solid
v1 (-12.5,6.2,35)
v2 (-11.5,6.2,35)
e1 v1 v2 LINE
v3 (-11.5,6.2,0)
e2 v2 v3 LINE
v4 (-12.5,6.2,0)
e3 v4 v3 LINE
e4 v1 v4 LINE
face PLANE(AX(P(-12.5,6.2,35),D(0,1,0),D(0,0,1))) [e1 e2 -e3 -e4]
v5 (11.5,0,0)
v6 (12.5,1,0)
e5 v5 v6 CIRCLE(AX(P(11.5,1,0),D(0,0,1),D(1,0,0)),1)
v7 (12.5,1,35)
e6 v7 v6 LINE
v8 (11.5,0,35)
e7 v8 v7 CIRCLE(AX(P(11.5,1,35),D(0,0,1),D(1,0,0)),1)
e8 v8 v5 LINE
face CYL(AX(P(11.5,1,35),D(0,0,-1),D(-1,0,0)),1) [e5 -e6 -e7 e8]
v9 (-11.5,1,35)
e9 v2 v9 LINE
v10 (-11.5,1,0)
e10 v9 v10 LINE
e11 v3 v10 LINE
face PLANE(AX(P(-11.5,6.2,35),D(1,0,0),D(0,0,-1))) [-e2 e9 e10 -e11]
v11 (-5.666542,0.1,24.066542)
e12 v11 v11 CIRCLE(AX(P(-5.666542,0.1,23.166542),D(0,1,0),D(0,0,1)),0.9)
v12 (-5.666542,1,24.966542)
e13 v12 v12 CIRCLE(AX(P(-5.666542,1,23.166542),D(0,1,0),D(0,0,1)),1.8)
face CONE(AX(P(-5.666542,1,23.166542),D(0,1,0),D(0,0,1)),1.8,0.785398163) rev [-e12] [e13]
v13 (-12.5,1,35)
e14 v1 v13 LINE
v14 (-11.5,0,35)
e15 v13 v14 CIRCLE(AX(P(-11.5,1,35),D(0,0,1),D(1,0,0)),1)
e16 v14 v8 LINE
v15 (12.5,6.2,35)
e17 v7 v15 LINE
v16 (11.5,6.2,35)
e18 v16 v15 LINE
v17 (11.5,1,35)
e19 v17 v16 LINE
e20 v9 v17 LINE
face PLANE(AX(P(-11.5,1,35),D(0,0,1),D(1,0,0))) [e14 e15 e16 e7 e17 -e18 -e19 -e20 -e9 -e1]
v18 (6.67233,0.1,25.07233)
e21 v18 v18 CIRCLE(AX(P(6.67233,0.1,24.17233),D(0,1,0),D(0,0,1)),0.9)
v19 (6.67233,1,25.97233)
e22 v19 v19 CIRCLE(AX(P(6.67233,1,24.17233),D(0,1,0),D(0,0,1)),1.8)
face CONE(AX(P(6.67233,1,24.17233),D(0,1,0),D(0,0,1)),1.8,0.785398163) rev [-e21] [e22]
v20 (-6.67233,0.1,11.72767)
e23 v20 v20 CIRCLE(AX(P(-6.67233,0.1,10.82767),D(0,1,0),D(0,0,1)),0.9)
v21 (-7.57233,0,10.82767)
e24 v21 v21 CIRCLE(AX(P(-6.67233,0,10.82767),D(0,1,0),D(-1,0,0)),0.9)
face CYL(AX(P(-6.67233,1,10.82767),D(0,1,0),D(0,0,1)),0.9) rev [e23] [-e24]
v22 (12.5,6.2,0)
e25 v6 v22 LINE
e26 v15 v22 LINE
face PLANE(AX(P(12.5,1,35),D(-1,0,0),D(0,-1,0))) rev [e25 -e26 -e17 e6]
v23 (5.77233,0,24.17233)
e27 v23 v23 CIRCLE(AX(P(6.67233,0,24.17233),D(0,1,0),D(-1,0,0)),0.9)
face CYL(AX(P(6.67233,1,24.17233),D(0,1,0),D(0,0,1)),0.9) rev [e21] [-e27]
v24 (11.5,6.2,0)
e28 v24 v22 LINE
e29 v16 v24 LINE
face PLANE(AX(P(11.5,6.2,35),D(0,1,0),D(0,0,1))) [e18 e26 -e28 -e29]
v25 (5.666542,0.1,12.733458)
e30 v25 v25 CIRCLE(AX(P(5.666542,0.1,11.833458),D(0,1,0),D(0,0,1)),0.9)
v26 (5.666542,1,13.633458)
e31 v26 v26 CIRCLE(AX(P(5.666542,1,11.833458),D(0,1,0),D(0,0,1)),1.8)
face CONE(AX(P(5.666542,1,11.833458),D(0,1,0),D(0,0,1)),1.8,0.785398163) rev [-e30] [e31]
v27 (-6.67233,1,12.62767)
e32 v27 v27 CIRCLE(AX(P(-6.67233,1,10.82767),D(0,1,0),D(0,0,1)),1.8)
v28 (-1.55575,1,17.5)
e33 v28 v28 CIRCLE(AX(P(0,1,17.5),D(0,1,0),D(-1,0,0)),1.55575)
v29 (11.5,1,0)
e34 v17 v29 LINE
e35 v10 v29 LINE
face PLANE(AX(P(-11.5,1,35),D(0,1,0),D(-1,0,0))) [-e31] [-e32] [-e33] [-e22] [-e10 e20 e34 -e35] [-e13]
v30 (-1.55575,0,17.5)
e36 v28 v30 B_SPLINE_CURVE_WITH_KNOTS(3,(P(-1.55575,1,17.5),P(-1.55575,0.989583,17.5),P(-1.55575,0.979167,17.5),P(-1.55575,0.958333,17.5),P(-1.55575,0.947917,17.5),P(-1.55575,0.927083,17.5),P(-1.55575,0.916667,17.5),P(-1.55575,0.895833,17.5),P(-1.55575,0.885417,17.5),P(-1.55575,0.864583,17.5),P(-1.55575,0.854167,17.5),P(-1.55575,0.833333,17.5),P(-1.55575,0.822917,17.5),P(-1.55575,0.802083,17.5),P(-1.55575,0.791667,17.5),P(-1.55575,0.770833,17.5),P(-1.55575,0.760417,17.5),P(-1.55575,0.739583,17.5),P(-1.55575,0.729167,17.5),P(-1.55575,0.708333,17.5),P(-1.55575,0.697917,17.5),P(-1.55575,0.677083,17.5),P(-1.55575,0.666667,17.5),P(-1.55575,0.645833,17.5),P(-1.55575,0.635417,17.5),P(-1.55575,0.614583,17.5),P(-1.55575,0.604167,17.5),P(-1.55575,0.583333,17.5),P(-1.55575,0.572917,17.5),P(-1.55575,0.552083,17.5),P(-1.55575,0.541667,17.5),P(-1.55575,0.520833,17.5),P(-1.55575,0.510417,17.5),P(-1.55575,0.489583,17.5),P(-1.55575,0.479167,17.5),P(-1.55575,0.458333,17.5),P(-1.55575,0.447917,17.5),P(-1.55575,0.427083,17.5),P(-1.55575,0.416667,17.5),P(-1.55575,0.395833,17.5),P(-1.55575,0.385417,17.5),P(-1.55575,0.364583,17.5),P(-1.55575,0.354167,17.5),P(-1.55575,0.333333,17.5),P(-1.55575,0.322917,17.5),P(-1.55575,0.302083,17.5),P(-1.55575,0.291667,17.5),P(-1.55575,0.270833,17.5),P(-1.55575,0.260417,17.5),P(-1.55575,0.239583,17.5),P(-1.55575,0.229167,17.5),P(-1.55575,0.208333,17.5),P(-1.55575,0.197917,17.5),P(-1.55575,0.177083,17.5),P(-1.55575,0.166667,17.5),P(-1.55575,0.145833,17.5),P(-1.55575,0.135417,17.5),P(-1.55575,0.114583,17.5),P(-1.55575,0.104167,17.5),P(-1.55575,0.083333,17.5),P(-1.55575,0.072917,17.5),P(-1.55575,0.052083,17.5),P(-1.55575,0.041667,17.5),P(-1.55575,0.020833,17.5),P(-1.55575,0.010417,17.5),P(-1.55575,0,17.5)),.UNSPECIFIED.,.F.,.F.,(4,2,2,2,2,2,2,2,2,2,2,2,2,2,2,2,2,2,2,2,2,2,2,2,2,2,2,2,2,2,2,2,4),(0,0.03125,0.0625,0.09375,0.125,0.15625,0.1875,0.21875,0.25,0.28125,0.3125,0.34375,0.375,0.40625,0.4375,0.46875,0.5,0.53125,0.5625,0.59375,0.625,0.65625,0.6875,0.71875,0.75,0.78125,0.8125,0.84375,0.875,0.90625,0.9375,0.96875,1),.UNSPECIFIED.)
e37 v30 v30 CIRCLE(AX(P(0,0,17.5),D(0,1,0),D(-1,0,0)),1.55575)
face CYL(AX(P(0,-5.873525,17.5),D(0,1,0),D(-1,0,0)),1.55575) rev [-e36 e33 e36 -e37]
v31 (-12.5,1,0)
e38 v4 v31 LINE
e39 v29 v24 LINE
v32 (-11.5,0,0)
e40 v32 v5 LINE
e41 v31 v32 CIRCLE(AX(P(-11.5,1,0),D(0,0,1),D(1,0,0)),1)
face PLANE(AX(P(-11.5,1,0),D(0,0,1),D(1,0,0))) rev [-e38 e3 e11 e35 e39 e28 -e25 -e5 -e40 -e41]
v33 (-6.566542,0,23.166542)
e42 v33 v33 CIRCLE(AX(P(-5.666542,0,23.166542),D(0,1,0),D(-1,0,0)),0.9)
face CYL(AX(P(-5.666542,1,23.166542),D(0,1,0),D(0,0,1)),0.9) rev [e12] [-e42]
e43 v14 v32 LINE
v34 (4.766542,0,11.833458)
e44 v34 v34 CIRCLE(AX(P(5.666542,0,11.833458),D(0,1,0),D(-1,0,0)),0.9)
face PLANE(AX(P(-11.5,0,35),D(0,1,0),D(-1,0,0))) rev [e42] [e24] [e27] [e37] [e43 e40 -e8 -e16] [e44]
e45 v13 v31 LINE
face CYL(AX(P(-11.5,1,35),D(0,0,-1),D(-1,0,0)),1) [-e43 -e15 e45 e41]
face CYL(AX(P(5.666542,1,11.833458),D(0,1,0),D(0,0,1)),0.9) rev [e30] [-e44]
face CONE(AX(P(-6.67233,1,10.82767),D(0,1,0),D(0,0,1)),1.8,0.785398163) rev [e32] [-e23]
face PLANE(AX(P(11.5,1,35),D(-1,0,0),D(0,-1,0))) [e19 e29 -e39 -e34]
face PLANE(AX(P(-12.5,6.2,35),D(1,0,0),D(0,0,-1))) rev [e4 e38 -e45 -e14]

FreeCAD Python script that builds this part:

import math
import FreeCAD as App
import Part
import Sketcher

doc = App.newDocument("Part")
params = doc.addObject("Spreadsheet::Sheet", "Params")
for row, (alias, value) in enumerate([
    ("sketch1_radius", "1 mm"),
    ("sketch1_width", "23 mm"),
    ("sketch1_height", "5.2 mm"),
    ("pad1_length", "35 mm"),
    ("sketch3_diameter", "1.8 mm"),
    ("hole_diameter", "1.8 mm"),
    ("hole_depth", "119 mm"),
    ("hole_csink_diameter", "3.6 mm"),
], start=1):
    params.set(f"A{row}", alias)
    params.set(f"B{row}", "=" + value)
    params.setAlias(f"B{row}", alias)

body = doc.addObject("PartDesign::Body", "Body")

# Sketch on XY plane
sketch1 = body.newObject("Sketcher::SketchObject", "Sketch")
sketch1.AttachmentSupport = (doc.getObject("XY_Plane"), [""])
sketch1.MapMode = "FlatFace"
sketch1.addGeometry([
    Part.LineSegment(App.Vector(-12.5, 6.2, 0), App.Vector(-12.5, 1, 0)),  # 0
    Part.ArcOfCircle(Part.Circle(App.Vector(-11.5, 1, 0), App.Vector(0, 0, 1), 1), math.radians(-180), math.radians(-90)),  # 1
    Part.LineSegment(App.Vector(-11.5, 0, 0), App.Vector(11.5, 0, 0)),  # 2
    Part.ArcOfCircle(Part.Circle(App.Vector(11.5, 1, 0), App.Vector(0, 0, 1), 1), math.radians(-90), math.radians(0)),  # 3
    Part.LineSegment(App.Vector(12.5, 1, 0), App.Vector(12.5, 6.2, 0)),  # 4
    Part.LineSegment(App.Vector(12.5, 6.2, 0), App.Vector(11.5, 6.2, 0)),  # 5
    Part.LineSegment(App.Vector(11.5, 6.2, 0), App.Vector(11.5, 1, 0)),  # 6
    Part.LineSegment(App.Vector(11.5, 1, 0), App.Vector(-11.5, 1, 0)),  # 7
    Part.LineSegment(App.Vector(-11.5, 1, 0), App.Vector(-11.5, 6.2, 0)),  # 8
    Part.LineSegment(App.Vector(-11.5, 6.2, 0), App.Vector(-12.5, 6.2, 0)),  # 9
], False)
sketch1.addConstraint([
    Sketcher.Constraint("Tangent", 0, 2, 1, 1),
    Sketcher.Constraint("Tangent", 1, 2, 2, 1),
    Sketcher.Constraint("Tangent", 2, 2, 3, 1),
    Sketcher.Constraint("Tangent", 3, 2, 4, 1),
    Sketcher.Constraint("Coincident", 4, 2, 5, 1),
    Sketcher.Constraint("Coincident", 5, 2, 6, 1),
    Sketcher.Constraint("Coincident", 6, 2, 7, 1),
    Sketcher.Constraint("Coincident", 7, 2, 8, 1),
    Sketcher.Constraint("Coincident", 8, 2, 9, 1),
    Sketcher.Constraint("Coincident", 9, 2, 0, 1),
    Sketcher.Constraint("Vertical", 0),
    Sketcher.Constraint("Horizontal", 2),
    Sketcher.Constraint("Vertical", 4),
    Sketcher.Constraint("Horizontal", 5),
    Sketcher.Constraint("Vertical", 6),
    Sketcher.Constraint("Horizontal", 7),
    Sketcher.Constraint("Vertical", 8),
    Sketcher.Constraint("Horizontal", 9),
    Sketcher.Constraint("Coincident", 6, 2, 3, 3),
    Sketcher.Constraint("Coincident", 7, 2, 1, 3),
    Sketcher.Constraint("Symmetric", 1, 2, 2, 2, -1, 1),
    Sketcher.Constraint("Horizontal", 5, 2, 8, 2),
    Sketcher.Constraint("Radius", 1, 1.0),
    Sketcher.Constraint("DistanceX", 2, 1, 2, 2, 23.0),
    Sketcher.Constraint("DistanceY", 0, 2, 0, 1, 5.2),
])
sketch1.setExpression("Constraints[22]", "Params.sketch1_radius")
sketch1.setExpression("Constraints[23]", "Params.sketch1_width")
sketch1.setExpression("Constraints[24]", "Params.sketch1_height")
pad1 = body.newObject("PartDesign::Pad", "Pad")
pad1.Profile = sketch1
pad1.setExpression("Length", "Params.pad1_length")

# Sketch on XZ plane
sketch2 = body.newObject("Sketcher::SketchObject", "Sketch001")
sketch2.AttachmentSupport = (doc.getObject("XZ_Plane"), [""])
sketch2.MapMode = "FlatFace"
sketch2.AttachmentOffset = App.Placement(App.Vector(0, 0, -1), App.Rotation())
sketch2.addGeometry(Part.Circle(App.Vector(0, 17.5, 0), App.Vector(0, 0, 1), 1.6), False)
sketch2.addConstraint([
    Sketcher.Constraint("PointOnObject", 0, 3, -2),
    Sketcher.Constraint("Diameter", 0, 3.1115),
    Sketcher.Constraint("DistanceY", -1, 1, 0, 3, 17.5),
])
pocket1 = body.newObject("PartDesign::Pocket", "Pocket")
pocket1.Profile = sketch2
pocket1.Type = "UpToFirst"
pocket1.Reversed = True

# Sketch on XZ plane
sketch3 = body.newObject("Sketcher::SketchObject", "Sketch002")
sketch3.AttachmentSupport = (doc.getObject("XZ_Plane"), [""])
sketch3.MapMode = "FlatFace"
sketch3.AttachmentOffset = App.Placement(App.Vector(0, 0, -1), App.Rotation())
sketch3.addGeometry([
    Part.Circle(App.Vector(5.7, 11.8, 0), App.Vector(0, 0, 1), 0.9),
    Part.Circle(App.Vector(6.7, 24.2, 0), App.Vector(0, 0, 1), 0.9),
    Part.Circle(App.Vector(-5.7, 23.2, 0), App.Vector(0, 0, 1), 0.9),
    Part.Circle(App.Vector(-6.7, 10.8, 0), App.Vector(0, 0, 1), 0.9),
], False)
sketch3.addConstraint([
    Sketcher.Constraint("Equal", 0, 1),
    Sketcher.Constraint("Equal", 1, 2),
    Sketcher.Constraint("Equal", 2, 3),
    Sketcher.Constraint("Diameter", 0, 1.8),
    Sketcher.Constraint("DistanceX", -1, 1, 0, 3, 5.666542),
    Sketcher.Constraint("DistanceY", -1, 1, 0, 3, 11.833458),
    Sketcher.Constraint("DistanceX", -1, 1, 1, 3, 6.67233),
    Sketcher.Constraint("DistanceY", -1, 1, 1, 3, 24.17233),
    Sketcher.Constraint("DistanceX", 2, 3, -1, 1, 5.666542),
    Sketcher.Constraint("DistanceY", -1, 1, 2, 3, 23.166542),
    Sketcher.Constraint("DistanceX", 3, 3, -1, 1, 6.67233),
    Sketcher.Constraint("DistanceY", -1, 1, 3, 3, 10.82767),
])
sketch3.setExpression("Constraints[3]", "Params.sketch3_diameter")
doc.recompute()
hole = body.newObject("PartDesign::Hole", "Hole")
hole.Profile = sketch3
hole.ThreadType = "None"
hole.setExpression("Diameter", "Params.hole_diameter")
hole.DepthType = "Dimension"
hole.setExpression("Depth", "Params.hole_depth")
hole.DrillPoint = "Angled"
hole.DrillPointAngle = 118
hole.HoleCutType = "Countersink"
hole.setExpression("HoleCutDiameter", "Params.hole_csink_diameter")
hole.HoleCutCountersinkAngle = 90
hole.Reversed = True

doc.recompute()
